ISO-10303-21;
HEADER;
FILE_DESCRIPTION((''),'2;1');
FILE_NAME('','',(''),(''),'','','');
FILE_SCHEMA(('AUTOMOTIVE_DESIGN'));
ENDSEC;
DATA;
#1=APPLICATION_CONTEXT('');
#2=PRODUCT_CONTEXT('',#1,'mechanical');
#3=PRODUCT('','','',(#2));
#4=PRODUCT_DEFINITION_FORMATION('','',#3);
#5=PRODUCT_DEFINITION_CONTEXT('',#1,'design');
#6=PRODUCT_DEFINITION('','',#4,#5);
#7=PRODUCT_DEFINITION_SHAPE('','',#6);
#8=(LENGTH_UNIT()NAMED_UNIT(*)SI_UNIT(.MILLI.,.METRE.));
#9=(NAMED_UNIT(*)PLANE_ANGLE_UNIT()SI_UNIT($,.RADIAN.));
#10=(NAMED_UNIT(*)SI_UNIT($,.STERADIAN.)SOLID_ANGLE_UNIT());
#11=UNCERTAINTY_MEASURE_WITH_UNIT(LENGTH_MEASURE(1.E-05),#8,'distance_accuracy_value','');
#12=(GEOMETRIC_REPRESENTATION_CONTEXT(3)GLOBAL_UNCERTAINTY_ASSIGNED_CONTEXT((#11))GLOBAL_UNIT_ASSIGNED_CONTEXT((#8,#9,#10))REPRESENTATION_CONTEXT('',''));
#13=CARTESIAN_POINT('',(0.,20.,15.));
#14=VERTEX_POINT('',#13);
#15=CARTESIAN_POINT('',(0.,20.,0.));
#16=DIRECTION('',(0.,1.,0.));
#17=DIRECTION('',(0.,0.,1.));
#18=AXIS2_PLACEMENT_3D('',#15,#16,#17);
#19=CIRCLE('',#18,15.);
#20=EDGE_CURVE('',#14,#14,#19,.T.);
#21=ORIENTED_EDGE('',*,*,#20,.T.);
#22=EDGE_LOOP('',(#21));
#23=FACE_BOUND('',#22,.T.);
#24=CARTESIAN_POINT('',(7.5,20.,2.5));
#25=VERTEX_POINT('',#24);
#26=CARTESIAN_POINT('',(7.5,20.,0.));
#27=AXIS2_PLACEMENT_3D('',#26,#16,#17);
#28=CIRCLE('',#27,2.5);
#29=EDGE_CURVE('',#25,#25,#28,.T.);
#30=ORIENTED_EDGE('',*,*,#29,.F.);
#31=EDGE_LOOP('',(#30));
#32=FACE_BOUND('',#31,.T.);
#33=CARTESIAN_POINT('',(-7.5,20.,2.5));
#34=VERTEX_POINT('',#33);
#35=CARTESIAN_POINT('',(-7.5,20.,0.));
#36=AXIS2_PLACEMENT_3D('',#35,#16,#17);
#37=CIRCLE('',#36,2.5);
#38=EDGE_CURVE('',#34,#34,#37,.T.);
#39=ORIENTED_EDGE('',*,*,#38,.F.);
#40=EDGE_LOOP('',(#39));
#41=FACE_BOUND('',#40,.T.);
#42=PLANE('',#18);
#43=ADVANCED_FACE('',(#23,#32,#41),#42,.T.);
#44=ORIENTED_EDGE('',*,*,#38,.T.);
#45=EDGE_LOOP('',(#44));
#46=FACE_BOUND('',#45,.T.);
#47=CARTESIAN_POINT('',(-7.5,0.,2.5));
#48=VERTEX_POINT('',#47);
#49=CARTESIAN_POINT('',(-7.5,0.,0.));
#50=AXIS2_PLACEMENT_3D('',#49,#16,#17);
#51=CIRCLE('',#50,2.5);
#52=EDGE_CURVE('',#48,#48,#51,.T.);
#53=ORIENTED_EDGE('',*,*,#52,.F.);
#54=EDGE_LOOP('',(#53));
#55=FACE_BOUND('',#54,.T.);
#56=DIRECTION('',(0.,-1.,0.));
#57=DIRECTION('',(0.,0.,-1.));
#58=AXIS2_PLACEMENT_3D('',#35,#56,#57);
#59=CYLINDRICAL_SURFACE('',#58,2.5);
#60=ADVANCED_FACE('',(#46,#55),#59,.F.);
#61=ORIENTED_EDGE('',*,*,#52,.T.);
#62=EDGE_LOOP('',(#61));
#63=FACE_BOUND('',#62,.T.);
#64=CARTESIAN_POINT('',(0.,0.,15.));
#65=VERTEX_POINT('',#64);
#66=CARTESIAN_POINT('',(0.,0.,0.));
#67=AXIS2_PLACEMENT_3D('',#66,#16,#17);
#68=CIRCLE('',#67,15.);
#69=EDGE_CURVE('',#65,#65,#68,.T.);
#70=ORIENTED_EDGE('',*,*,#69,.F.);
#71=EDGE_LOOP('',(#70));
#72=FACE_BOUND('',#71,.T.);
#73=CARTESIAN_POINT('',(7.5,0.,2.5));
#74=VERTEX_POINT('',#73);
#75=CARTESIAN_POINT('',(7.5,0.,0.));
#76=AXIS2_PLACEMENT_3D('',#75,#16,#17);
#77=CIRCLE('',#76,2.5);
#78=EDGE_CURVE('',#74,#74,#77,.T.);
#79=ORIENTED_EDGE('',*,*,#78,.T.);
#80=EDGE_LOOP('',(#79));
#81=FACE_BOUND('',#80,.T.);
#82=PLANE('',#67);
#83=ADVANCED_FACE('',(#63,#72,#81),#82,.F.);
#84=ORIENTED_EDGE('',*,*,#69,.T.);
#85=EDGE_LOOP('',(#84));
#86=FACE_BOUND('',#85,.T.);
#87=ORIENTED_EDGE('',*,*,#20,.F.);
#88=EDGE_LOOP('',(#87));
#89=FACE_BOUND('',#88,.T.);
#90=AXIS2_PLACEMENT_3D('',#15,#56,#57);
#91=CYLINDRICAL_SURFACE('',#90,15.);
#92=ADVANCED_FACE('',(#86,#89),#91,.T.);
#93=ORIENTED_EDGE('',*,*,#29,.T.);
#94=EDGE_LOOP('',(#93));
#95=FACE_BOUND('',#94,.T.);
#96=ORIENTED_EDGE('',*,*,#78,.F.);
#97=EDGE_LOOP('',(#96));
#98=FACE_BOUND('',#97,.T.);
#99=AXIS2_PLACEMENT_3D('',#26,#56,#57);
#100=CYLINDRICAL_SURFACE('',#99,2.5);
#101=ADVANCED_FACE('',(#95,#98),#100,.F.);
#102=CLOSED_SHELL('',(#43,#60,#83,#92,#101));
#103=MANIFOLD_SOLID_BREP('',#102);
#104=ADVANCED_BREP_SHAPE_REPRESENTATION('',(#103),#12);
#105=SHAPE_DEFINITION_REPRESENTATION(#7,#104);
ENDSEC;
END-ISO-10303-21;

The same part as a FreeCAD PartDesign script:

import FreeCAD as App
import Part
import Sketcher

doc = App.newDocument("Part")
params = doc.addObject("Spreadsheet::Sheet", "Params")
for row, (alias, value) in enumerate([
    ("sketch1_diameter", "30 mm"),
    ("sketch1_diameter2", "5 mm"),
    ("pad1_length", "20 mm"),
], start=1):
    params.set(f"A{row}", alias)
    params.set(f"B{row}", "=" + value)
    params.setAlias(f"B{row}", alias)

body = doc.addObject("PartDesign::Body", "Body")

sketch1 = doc.addObject("Sketcher::SketchObject", "Sketch")
body.addObject(sketch1)
sketch1.AttachmentSupport = (doc.XZ_Plane, [""])
sketch1.MapMode = "FlatFace"
sketch1.addGeometry([
    Part.Circle(App.Vector(0, 0, 0), App.Vector(0, 0, 1), 15),
    Part.Circle(App.Vector(-7.5, 0, 0), App.Vector(0, 0, 1), 2.5),
    Part.Circle(App.Vector(7.5, 0, 0), App.Vector(0, 0, 1), 2.5),
], False)
sketch1.addConstraint([
    Sketcher.Constraint("Coincident", 0, 3, -1, 1),
    Sketcher.Constraint("Equal", 1, 2),
    Sketcher.Constraint("Symmetric", 1, 3, 2, 3, -1, 1),
    Sketcher.Constraint("PointOnObject", 1, 3, -1),
    Sketcher.Constraint("Diameter", 0, 30.0),
    Sketcher.Constraint("Diameter", 1, 5.0),
    Sketcher.Constraint("DistanceX", 1, 3, 2, 3, 15.0),
])
sketch1.setExpression("Constraints[4]", "Params.sketch1_diameter")
sketch1.setExpression("Constraints[5]", "Params.sketch1_diameter2")
pad1 = doc.addObject("PartDesign::Pad", "Pad")
body.addObject(pad1)
pad1.Profile = sketch1
pad1.setExpression("Length", "Params.pad1_length")
pad1.Reversed = True

doc.recompute()
